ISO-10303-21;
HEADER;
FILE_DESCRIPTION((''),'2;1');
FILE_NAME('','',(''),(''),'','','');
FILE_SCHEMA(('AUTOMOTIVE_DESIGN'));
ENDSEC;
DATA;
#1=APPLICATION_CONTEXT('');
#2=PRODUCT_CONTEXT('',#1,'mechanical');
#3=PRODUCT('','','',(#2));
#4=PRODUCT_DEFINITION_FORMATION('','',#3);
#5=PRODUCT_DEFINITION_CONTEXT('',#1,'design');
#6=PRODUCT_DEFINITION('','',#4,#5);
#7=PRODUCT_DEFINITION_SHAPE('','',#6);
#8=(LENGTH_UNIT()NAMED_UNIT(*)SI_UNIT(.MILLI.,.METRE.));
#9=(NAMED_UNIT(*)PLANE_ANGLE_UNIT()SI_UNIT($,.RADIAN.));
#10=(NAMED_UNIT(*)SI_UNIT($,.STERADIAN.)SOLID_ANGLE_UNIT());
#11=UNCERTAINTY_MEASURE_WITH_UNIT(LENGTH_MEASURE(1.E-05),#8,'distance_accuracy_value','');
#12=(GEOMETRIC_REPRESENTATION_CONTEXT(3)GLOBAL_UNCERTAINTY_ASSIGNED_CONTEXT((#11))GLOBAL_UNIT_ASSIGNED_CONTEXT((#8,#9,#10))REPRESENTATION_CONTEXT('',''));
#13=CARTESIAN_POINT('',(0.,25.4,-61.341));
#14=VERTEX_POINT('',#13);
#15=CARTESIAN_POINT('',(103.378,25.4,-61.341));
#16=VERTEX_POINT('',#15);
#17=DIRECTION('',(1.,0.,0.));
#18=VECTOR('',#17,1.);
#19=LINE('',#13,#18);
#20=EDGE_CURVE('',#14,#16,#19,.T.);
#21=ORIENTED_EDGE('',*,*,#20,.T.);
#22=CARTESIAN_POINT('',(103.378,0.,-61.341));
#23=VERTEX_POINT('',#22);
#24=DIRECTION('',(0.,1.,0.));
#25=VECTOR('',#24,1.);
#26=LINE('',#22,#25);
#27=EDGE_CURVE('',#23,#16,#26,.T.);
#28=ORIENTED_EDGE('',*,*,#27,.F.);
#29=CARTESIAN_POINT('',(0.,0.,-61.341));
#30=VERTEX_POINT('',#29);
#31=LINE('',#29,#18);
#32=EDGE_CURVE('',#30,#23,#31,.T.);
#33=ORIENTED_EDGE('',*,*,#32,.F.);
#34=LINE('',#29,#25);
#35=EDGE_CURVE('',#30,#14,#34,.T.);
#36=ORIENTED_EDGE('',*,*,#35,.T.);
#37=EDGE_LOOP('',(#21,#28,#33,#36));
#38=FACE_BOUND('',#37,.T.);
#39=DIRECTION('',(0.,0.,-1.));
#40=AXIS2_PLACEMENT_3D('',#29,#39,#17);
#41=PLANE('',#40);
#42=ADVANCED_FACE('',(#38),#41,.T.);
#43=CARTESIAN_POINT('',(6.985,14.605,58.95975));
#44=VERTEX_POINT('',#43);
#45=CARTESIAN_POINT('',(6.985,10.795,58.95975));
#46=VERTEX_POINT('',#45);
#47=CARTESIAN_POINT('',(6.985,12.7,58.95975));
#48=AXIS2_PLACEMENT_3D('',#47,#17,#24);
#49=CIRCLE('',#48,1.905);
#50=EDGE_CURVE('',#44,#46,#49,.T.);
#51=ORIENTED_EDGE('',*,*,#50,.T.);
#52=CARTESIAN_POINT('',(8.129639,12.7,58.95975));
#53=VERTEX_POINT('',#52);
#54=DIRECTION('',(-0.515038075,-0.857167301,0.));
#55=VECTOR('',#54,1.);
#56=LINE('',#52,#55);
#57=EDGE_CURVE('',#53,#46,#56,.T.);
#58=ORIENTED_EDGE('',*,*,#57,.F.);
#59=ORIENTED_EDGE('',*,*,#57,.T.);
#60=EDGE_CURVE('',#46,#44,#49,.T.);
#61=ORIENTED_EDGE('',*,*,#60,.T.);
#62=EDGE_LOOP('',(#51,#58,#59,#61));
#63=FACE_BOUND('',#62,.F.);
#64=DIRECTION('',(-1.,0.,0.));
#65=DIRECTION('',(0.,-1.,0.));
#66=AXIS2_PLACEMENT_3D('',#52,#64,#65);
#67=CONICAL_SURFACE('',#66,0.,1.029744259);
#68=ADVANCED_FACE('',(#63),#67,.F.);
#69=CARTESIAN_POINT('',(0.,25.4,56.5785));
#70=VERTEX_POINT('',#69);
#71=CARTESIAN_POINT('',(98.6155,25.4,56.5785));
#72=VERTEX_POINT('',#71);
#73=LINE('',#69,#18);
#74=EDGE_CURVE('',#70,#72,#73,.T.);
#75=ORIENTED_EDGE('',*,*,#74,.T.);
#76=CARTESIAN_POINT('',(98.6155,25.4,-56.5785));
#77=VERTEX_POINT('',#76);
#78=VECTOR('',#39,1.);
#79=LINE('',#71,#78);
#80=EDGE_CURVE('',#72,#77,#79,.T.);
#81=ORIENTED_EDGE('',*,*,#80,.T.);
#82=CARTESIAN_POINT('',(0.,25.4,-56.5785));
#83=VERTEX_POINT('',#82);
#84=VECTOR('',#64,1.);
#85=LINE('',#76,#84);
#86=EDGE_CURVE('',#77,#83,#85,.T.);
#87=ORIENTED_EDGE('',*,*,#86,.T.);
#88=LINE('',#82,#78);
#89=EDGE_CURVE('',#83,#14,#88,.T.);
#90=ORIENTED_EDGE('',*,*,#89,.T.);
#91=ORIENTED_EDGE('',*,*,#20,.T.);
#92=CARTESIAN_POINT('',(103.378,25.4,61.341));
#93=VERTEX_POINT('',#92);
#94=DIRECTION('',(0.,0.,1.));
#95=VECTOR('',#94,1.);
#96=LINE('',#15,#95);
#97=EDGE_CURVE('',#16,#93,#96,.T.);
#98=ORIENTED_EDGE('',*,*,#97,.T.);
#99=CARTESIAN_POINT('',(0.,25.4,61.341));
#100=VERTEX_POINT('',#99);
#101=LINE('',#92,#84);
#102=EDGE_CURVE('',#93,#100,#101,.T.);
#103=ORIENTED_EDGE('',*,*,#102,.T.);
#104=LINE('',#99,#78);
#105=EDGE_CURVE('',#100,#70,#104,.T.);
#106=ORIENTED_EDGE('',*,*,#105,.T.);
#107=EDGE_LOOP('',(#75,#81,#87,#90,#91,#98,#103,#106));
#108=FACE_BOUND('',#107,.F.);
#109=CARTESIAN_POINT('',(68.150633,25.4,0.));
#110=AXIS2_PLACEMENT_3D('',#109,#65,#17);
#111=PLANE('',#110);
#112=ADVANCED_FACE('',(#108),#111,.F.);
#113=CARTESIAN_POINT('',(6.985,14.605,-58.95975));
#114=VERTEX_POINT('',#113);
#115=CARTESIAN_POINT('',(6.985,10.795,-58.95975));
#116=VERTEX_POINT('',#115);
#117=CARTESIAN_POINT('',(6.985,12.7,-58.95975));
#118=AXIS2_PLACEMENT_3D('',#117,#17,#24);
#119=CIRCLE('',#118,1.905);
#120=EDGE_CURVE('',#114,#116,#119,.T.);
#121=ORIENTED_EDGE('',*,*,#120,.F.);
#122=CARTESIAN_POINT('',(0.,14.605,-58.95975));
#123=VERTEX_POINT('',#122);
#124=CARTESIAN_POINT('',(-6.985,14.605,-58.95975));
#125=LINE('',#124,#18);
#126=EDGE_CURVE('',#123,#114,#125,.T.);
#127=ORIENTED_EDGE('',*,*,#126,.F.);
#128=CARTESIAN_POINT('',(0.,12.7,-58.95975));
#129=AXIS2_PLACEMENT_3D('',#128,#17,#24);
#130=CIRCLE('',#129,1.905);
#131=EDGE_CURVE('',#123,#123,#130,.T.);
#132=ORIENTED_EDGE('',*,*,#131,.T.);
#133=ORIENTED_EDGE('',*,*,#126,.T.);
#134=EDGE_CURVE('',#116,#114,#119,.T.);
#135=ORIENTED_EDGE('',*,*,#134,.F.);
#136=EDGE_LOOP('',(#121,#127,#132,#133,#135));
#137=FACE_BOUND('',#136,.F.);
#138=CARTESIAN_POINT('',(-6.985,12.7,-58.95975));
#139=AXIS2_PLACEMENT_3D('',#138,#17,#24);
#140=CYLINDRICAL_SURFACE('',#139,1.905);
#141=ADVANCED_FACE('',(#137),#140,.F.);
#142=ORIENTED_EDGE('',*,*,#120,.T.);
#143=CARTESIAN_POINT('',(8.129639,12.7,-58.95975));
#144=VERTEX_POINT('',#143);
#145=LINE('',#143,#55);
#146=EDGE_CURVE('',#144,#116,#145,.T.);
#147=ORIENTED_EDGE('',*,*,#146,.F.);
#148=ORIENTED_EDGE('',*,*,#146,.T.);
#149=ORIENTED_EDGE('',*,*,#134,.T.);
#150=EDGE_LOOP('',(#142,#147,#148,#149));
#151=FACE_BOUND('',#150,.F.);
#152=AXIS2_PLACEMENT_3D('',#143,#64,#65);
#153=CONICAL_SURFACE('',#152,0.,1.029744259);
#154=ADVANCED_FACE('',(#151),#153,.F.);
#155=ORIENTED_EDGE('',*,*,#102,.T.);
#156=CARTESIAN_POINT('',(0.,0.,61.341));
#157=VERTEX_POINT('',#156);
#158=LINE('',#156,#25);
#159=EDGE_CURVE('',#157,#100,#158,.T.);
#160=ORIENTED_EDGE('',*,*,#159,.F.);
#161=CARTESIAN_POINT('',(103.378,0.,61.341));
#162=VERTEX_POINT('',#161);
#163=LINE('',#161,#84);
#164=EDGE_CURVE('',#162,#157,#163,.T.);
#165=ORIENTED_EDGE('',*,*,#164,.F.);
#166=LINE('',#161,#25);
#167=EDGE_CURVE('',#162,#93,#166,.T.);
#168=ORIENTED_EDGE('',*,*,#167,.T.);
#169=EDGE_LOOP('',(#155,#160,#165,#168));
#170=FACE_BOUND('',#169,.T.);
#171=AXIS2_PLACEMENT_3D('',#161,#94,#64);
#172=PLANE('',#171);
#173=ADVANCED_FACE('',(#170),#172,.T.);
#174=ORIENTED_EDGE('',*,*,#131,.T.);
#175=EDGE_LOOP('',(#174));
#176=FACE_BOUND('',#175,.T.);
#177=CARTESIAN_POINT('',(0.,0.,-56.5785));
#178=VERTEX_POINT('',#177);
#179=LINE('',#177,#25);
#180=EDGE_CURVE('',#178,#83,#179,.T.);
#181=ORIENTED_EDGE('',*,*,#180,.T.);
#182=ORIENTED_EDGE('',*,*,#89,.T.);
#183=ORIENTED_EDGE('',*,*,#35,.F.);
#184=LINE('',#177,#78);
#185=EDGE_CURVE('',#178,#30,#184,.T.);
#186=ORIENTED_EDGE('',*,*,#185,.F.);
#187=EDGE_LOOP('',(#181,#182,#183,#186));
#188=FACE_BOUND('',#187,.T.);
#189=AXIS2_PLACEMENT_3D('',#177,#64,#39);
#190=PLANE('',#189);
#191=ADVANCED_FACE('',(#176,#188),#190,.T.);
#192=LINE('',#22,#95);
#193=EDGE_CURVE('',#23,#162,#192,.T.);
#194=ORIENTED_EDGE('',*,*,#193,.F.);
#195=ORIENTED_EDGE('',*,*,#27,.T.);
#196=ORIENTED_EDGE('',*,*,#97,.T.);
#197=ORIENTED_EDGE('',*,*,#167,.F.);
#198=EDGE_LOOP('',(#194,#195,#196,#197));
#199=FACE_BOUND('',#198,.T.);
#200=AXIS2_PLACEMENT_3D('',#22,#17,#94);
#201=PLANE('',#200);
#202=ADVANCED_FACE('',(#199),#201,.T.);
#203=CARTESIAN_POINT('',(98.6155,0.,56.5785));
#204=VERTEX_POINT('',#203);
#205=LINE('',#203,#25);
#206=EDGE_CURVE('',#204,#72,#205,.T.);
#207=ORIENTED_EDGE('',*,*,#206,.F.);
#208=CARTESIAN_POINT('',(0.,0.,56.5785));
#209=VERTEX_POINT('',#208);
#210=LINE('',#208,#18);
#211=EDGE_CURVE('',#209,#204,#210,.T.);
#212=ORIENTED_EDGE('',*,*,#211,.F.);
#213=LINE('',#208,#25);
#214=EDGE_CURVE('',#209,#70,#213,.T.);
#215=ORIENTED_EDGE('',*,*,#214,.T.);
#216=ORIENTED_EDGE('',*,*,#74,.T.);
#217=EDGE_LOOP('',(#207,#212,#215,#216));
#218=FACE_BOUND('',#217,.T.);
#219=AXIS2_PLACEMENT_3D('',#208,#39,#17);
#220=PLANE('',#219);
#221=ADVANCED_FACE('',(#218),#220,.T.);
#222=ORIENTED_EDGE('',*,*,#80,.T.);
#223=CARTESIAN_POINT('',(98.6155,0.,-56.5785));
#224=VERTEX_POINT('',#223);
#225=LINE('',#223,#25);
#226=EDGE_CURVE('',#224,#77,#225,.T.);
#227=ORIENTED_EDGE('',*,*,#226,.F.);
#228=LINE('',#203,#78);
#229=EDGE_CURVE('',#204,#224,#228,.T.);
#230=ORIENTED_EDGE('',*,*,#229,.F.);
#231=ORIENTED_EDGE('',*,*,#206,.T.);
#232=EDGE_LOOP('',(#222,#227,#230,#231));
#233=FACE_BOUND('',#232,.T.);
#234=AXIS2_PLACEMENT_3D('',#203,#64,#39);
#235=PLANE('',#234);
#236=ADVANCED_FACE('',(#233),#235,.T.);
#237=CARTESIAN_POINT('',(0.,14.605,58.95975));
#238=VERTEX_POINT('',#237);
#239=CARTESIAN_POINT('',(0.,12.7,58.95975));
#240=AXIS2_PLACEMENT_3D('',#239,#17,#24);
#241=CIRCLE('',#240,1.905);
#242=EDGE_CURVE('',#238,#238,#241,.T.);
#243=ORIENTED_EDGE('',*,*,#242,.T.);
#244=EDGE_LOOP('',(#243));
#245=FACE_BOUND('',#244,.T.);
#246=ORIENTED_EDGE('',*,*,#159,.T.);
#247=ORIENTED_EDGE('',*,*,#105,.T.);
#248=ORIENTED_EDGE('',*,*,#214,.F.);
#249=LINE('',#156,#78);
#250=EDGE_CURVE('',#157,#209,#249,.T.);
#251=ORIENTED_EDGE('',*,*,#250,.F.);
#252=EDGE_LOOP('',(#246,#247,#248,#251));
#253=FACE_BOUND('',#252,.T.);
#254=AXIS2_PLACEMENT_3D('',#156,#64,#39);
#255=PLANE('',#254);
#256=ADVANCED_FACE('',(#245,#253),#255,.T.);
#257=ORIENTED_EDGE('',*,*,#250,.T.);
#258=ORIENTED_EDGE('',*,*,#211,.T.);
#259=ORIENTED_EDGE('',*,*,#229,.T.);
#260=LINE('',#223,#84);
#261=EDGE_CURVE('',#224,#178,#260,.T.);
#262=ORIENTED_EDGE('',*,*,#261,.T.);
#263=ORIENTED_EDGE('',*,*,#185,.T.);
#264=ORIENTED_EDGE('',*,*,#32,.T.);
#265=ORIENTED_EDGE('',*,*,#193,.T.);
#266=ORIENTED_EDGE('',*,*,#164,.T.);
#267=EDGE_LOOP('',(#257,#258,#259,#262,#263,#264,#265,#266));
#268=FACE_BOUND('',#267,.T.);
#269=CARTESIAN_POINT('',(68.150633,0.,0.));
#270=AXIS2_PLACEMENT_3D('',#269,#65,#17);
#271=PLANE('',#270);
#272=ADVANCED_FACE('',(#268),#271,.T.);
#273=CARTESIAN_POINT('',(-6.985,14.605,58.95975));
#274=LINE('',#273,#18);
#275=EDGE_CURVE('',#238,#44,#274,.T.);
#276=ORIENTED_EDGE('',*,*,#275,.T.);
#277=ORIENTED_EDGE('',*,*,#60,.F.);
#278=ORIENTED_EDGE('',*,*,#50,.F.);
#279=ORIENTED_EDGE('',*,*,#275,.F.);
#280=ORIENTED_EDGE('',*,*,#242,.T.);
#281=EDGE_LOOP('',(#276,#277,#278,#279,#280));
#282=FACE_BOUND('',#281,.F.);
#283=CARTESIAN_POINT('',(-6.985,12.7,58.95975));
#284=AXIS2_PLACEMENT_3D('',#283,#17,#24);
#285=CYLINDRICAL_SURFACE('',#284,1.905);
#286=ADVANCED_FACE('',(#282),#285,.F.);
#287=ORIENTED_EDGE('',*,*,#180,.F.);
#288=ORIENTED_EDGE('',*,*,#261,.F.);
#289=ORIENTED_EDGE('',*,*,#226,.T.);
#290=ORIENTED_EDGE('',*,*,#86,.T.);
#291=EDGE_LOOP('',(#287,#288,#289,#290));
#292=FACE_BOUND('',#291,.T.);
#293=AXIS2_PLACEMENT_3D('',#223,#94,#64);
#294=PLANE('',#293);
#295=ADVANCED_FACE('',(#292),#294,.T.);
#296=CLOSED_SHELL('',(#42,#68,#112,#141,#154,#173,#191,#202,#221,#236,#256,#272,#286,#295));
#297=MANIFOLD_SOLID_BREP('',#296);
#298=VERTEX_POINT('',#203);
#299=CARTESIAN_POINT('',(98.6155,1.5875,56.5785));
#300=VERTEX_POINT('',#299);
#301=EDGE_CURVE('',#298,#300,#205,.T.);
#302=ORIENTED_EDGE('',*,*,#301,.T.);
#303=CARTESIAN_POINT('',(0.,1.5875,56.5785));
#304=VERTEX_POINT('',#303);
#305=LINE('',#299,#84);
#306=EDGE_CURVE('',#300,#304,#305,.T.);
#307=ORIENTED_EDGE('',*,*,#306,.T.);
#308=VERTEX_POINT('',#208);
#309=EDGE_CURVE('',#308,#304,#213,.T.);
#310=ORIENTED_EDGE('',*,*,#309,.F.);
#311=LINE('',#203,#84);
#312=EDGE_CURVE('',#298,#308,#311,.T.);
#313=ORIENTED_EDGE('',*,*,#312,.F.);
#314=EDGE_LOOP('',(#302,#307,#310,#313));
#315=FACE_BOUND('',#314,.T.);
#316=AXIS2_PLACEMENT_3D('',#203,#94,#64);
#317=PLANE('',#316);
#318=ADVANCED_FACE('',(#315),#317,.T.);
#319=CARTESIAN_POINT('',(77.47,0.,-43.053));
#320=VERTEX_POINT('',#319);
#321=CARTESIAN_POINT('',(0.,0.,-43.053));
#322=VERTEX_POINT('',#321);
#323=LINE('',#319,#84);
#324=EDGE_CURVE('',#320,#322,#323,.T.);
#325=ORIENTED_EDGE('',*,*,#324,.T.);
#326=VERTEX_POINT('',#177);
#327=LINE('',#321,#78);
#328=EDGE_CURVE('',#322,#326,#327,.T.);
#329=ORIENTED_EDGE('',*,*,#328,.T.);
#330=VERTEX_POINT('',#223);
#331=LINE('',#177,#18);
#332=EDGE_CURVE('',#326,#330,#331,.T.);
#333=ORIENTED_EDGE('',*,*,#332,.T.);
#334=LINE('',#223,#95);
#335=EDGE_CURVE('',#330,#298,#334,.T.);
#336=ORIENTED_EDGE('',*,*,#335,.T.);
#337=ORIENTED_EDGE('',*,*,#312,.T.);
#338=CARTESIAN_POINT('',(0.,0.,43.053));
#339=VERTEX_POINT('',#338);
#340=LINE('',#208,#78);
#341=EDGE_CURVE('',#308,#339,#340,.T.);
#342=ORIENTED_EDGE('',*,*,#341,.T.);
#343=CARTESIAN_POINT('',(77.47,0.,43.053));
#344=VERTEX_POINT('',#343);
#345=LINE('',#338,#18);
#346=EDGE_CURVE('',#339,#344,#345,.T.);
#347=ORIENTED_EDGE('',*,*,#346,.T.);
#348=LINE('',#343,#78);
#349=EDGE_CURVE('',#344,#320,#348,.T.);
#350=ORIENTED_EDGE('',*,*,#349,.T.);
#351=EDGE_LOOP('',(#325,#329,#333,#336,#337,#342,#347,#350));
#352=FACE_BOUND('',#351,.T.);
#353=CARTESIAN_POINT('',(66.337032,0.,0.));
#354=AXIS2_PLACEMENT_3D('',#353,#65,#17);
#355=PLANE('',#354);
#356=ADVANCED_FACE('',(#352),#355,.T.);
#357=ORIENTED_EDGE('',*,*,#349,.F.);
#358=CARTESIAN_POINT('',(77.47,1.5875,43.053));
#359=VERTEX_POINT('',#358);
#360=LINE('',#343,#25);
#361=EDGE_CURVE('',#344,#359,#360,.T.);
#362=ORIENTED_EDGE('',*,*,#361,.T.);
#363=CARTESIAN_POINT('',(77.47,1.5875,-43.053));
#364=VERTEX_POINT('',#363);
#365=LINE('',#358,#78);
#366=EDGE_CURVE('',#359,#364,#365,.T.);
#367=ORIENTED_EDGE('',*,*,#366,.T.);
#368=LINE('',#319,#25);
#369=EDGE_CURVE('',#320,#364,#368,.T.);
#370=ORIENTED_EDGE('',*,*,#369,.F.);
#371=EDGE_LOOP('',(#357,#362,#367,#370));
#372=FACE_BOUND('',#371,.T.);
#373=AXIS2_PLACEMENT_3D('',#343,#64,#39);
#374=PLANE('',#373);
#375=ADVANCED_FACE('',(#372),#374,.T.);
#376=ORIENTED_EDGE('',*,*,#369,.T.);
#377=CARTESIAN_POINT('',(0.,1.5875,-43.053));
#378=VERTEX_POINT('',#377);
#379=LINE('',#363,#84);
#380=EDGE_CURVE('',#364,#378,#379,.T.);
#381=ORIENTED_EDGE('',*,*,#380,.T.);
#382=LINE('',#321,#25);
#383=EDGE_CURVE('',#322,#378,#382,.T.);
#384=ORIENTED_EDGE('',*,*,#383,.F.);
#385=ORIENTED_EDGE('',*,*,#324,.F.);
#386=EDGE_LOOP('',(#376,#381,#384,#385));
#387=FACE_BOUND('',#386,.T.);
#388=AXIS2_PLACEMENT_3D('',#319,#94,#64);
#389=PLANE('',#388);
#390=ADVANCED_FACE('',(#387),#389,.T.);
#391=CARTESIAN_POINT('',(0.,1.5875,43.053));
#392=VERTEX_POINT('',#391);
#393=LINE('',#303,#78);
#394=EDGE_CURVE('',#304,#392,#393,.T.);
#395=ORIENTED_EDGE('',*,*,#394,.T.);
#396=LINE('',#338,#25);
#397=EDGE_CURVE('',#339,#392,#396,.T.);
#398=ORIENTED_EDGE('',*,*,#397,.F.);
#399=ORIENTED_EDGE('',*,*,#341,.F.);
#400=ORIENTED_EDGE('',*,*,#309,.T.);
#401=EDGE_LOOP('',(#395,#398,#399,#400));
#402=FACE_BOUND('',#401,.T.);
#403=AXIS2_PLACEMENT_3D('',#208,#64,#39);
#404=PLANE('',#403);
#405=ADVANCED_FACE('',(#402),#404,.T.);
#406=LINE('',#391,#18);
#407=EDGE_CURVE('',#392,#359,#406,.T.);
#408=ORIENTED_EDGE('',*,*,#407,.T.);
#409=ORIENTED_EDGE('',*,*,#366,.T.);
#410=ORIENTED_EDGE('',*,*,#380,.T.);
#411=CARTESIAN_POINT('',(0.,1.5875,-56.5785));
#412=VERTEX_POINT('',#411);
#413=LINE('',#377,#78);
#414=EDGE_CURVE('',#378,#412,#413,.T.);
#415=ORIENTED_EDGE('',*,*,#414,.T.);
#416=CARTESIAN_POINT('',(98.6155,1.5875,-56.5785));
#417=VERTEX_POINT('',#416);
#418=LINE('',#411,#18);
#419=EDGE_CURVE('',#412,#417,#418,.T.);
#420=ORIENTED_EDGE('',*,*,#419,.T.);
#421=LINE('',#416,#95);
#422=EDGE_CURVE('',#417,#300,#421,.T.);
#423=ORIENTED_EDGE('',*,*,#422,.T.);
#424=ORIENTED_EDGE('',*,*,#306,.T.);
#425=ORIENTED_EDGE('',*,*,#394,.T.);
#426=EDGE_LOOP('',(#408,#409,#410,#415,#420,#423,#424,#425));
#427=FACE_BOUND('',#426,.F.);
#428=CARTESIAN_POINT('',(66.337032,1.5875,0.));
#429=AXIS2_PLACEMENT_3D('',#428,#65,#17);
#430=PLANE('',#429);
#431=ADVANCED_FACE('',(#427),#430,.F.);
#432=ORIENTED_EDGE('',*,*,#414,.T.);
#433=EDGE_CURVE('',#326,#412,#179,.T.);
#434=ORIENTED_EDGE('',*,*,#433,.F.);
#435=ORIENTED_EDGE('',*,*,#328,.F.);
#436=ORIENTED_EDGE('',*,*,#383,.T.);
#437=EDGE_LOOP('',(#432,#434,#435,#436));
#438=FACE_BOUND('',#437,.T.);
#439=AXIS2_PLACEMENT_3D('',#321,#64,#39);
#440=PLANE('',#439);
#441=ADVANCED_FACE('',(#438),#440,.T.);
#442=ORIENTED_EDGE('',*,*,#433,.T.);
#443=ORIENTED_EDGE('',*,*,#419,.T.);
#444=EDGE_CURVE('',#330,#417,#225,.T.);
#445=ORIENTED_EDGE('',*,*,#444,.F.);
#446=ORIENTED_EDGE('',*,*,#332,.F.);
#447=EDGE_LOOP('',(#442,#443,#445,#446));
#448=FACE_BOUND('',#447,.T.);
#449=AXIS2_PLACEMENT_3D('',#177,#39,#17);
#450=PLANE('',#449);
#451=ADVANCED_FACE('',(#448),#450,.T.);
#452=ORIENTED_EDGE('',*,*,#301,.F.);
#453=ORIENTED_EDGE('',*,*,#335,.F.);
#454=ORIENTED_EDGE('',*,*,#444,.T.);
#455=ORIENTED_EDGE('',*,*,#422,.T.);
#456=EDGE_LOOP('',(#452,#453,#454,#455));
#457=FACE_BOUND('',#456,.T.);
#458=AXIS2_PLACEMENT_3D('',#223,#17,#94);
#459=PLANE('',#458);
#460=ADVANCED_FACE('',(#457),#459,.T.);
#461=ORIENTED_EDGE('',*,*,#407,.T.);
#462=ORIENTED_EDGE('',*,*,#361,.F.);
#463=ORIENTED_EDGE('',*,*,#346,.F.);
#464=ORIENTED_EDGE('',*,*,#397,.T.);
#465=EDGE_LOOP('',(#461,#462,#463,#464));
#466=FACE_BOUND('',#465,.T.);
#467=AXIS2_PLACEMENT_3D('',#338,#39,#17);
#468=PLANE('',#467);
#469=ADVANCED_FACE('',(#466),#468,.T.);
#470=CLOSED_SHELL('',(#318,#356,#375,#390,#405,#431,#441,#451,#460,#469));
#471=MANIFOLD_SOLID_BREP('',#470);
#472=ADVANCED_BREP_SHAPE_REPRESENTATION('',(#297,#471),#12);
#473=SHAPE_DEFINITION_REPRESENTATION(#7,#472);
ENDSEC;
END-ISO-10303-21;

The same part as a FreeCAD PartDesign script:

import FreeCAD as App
import Part
import Sketcher
from FreeCAD import Vector
Q = App.Units.Quantity


def add_polygon(sketch, points):
    """Adds a closed chain of lines whose ends are joined by coincident constraints."""
    first, n = sketch.GeometryCount, len(points)
    for a, b in zip(points, points[1:] + points[:1]):
        sketch.addGeometry(Part.LineSegment(App.Vector(*a, 0), App.Vector(*b, 0)), False)
    for i in range(n):
        sketch.addConstraint(Sketcher.Constraint("Coincident", first + i, 2, first + (i + 1) % n, 1))

doc = App.newDocument("Part")
body = doc.addObject("PartDesign::Body", "Body")

# Sketch on XZ plane
sketch1 = body.newObject("Sketcher::SketchObject", "Sketch")
sketch1.AttachmentSupport = (doc.getObject("XZ_Plane"), [""])
sketch1.MapMode = "FlatFace"
add_polygon(sketch1, [(0, 57), (0, 43), (77, 43), (77, -43), (0, -43), (0, -57), (99, -57), (99, 57)])  # lines 0-7
sketch1.addConstraint([
    Sketcher.Constraint("Vertical", 0),
    Sketcher.Constraint("Horizontal", 1),
    Sketcher.Constraint("Vertical", 2),
    Sketcher.Constraint("Horizontal", 3),
    Sketcher.Constraint("Vertical", 4),
    Sketcher.Constraint("Horizontal", 5),
    Sketcher.Constraint("Vertical", 6),
    Sketcher.Constraint("Horizontal", 7),
    Sketcher.Constraint("Symmetric", 0, 2, 3, 2, -1, 1),
    Sketcher.Constraint("Symmetric", 4, 2, 7, 2, -1),
    Sketcher.Constraint("DistanceX", 1, 1, 1, 2, Q("3.05 in")),
    Sketcher.Constraint("DistanceY", 2, 2, 2, 1, Q("3.39 in")),
    Sketcher.Constraint("DistanceY", 6, 1, 6, 2, Q("4.455 in")),
    Sketcher.Constraint("DistanceX", 5, 1, 5, 2, Q("3.8825 in")),
])
pad1 = body.newObject("PartDesign::Pad", "Pad")
pad1.Profile = sketch1
pad1.Length = Q("0.0625 in")
pad1.Reversed = True
body2 = doc.addObject("PartDesign::Body", "Body001")

# Sketch on XZ plane
sketch2 = body2.newObject("Sketcher::SketchObject", "Sketch001")
sketch2.AttachmentSupport = (doc.getObject("XZ_Plane001"), [""])
sketch2.MapMode = "FlatFace"
add_polygon(sketch2, [(0, 61.3), (0, 56.6), (98.6, 56.6), (98.6, -56.6), (0, -56.6), (0, -61.3), (103.4, -61.3), (103.4, 61.3)])  # lines 0-7
sketch2.addConstraint([
    Sketcher.Constraint("Vertical", 0),
    Sketcher.Constraint("Horizontal", 1),
    Sketcher.Constraint("Vertical", 2),
    Sketcher.Constraint("Horizontal", 3),
    Sketcher.Constraint("Vertical", 4),
    Sketcher.Constraint("Horizontal", 5),
    Sketcher.Constraint("Vertical", 6),
    Sketcher.Constraint("Horizontal", 7),
    Sketcher.Constraint("Symmetric", 0, 2, 3, 2, -1, 1),
    Sketcher.Constraint("Symmetric", 4, 2, 7, 2, -1),
    Sketcher.Constraint("DistanceX", 5, 1, 5, 2, Q("4.07 in")),
    Sketcher.Constraint("DistanceY", 6, 1, 6, 2, Q("4.83 in")),
    Sketcher.Constraint("DistanceY", 0, 2, 0, 1, Q("0.1875 in")),
    Sketcher.Constraint("DistanceX", 1, 1, 1, 2, Q("3.8825 in")),
])
pad2 = body2.newObject("PartDesign::Pad", "Pad001")
pad2.Profile = sketch2
pad2.Length = Q("1 in")
pad2.Reversed = True

# Sketch on YZ plane
sketch3 = body2.newObject("Sketcher::SketchObject", "Sketch002")
sketch3.AttachmentSupport = (doc.getObject("YZ_Plane001"), [""])
sketch3.MapMode = "FlatFace"
sketch3.addGeometry(Part.Circle(Vector(12.7, 59, 0), Vector(0, 0, 1), 1.9), False)
sketch3.addConstraint([
    Sketcher.Constraint("Diameter", 0, Q("0.15 in")),
    Sketcher.Constraint("DistanceX", -1, 1, 0, 3, Q("0.5 in")),
    Sketcher.Constraint("DistanceY", -1, 1, 0, 3, 58.95975),
])
doc.recompute()
hole = body2.newObject("PartDesign::Hole", "Hole")
hole.Profile = sketch3
hole.ThreadType = "None"
hole.Diameter = Q("0.15 in")
hole.DepthType = "Dimension"
hole.Depth = Q("0.275 in")
hole.DrillPoint = "Angled"
hole.DrillPointAngle = 118
hole.Reversed = True

# Sketch on YZ plane
sketch4 = body2.newObject("Sketcher::SketchObject", "Sketch003")
sketch4.AttachmentSupport = (doc.getObject("YZ_Plane001"), [""])
sketch4.MapMode = "FlatFace"
sketch4.addGeometry(Part.Circle(Vector(12.7, -59, 0), Vector(0, 0, 1), 1.9), False)
sketch4.addConstraint([
    Sketcher.Constraint("Diameter", 0, Q("0.15 in")),
    Sketcher.Constraint("DistanceX", -1, 1, 0, 3, Q("0.5 in")),
    Sketcher.Constraint("DistanceY", 0, 3, -1, 1, 58.95975),
])
doc.recompute()
hole2 = body2.newObject("PartDesign::Hole", "Hole001")
hole2.Profile = sketch4
hole2.ThreadType = "None"
hole2.Diameter = Q("0.15 in")
hole2.DepthType = "Dimension"
hole2.Depth = Q("0.275 in")
hole2.DrillPoint = "Angled"
hole2.DrillPointAngle = 118
hole2.Reversed = True

doc.recompute()
